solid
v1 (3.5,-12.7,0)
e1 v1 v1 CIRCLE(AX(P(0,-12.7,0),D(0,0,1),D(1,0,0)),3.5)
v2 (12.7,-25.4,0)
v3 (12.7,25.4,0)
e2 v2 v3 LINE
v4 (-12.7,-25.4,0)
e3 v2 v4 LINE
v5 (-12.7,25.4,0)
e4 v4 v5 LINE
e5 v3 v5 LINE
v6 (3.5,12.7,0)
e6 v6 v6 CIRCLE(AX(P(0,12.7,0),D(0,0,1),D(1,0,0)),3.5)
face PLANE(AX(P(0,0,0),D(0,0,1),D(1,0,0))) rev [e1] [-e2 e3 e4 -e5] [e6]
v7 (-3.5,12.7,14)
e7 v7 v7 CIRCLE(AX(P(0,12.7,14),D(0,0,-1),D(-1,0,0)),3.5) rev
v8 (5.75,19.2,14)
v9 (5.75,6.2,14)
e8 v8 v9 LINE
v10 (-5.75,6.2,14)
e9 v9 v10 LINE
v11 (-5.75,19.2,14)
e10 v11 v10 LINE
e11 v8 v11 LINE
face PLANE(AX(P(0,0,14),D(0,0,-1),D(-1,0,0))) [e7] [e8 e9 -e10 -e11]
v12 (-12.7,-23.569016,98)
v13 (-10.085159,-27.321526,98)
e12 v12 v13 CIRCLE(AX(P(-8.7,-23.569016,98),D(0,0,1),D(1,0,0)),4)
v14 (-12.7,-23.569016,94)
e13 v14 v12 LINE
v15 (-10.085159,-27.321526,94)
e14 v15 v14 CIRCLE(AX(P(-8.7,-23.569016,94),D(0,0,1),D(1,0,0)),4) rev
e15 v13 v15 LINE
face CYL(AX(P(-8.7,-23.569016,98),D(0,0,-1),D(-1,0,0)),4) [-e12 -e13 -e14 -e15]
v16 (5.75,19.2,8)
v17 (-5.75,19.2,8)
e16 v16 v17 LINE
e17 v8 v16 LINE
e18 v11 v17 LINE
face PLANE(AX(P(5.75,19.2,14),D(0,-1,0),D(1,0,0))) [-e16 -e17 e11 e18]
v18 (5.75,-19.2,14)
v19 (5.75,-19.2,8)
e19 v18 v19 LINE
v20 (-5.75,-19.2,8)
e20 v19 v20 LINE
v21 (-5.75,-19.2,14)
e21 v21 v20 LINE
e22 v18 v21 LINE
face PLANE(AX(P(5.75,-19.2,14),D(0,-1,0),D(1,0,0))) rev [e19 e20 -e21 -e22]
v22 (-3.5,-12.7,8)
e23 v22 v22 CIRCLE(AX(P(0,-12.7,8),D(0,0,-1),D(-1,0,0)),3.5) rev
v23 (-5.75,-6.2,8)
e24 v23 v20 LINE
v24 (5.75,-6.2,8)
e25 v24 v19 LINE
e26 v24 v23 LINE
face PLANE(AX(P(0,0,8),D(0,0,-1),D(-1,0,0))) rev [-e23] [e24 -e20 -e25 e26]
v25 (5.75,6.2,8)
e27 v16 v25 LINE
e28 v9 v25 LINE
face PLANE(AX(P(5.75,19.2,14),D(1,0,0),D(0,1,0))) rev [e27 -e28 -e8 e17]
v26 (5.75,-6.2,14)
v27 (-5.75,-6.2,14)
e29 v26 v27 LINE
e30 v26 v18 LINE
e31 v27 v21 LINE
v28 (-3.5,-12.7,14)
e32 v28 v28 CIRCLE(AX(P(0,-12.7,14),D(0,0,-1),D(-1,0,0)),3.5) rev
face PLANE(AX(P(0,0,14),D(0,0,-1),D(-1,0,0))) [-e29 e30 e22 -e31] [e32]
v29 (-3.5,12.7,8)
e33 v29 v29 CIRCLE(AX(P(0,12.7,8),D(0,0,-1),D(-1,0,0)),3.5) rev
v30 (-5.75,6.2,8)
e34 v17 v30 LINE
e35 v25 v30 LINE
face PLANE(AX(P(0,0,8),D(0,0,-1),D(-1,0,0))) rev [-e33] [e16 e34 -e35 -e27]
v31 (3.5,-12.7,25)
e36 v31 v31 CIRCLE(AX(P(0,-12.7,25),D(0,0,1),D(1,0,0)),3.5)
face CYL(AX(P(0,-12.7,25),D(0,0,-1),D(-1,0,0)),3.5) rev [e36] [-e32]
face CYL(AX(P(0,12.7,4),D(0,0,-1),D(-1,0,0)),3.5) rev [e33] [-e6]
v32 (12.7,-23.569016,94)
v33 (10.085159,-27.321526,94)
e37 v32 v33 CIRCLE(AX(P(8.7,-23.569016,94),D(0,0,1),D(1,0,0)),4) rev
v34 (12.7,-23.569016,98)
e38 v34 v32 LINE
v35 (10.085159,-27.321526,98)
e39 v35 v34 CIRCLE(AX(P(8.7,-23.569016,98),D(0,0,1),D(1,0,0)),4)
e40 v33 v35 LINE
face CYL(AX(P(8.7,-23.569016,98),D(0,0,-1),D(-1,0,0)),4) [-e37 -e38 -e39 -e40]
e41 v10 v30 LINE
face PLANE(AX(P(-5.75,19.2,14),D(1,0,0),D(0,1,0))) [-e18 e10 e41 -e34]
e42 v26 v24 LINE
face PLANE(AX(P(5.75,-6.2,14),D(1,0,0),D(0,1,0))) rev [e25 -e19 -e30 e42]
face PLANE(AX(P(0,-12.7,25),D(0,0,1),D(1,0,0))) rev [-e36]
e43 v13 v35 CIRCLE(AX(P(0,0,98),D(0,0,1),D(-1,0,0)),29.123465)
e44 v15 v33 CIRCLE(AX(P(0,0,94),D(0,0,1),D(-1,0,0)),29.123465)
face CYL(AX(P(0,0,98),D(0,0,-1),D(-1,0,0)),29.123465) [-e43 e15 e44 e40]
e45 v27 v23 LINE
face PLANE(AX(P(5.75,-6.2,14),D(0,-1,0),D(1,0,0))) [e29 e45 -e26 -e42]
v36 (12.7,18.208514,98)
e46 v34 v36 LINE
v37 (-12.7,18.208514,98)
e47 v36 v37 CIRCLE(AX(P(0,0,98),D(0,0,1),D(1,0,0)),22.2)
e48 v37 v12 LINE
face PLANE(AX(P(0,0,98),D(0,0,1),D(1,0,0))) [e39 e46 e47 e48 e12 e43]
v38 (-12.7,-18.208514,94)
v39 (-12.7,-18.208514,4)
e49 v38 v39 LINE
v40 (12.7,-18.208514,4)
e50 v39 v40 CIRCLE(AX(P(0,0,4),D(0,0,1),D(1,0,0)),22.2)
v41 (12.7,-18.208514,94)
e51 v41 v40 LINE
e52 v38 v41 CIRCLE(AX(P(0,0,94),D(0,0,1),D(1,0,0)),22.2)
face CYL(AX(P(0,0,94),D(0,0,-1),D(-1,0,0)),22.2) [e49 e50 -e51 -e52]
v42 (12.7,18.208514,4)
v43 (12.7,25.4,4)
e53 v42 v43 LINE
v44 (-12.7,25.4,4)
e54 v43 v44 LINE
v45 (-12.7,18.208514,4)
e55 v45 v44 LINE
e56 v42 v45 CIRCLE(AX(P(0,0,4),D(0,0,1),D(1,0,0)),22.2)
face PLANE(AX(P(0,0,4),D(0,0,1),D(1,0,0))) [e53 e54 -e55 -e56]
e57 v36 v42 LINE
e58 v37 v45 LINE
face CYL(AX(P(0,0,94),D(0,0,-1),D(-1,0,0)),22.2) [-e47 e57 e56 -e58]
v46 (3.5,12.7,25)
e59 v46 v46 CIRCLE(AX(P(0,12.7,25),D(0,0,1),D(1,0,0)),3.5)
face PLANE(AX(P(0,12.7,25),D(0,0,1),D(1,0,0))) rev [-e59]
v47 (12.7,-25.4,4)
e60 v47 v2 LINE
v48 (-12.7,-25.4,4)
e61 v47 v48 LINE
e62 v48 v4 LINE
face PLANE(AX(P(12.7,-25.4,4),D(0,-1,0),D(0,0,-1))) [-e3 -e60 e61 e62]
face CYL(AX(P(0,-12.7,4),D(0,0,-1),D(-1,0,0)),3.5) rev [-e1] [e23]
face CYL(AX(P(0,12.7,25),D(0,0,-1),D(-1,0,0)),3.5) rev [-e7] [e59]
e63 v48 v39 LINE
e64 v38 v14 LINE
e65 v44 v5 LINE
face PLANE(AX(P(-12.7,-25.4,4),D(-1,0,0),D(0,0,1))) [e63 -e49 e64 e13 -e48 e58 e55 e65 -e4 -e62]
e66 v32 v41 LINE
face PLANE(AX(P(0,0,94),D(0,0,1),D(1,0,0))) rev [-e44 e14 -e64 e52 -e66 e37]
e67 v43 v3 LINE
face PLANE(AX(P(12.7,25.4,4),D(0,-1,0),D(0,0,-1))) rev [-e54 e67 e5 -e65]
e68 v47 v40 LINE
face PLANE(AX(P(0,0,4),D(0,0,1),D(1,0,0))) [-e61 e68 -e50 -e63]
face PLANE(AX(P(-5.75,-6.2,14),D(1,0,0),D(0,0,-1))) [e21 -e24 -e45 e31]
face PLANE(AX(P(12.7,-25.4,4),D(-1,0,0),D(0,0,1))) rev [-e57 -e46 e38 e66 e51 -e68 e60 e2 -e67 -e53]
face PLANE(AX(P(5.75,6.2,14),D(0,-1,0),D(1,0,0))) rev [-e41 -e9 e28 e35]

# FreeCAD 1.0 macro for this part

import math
import FreeCAD as App
import Part
import Sketcher
from FreeCAD import Vector
Q = App.Units.Quantity


def edges_at(feature, points):
    """Names of the edges that pass closest to the given points."""
    edges = feature.Shape.Edges
    near = lambda p: min(range(len(edges)), key=lambda i: edges[i].distToShape(Part.Vertex(*p))[0])
    return sorted({f"Edge{near(p) + 1}" for p in points})

doc = App.newDocument("Part")
body = doc.addObject("PartDesign::Body", "Body")

sketch1 = body.newObject("Sketcher::SketchObject", "Sketch")
sketch1.AttachmentSupport = (doc.getObject("XY_Plane"), [""])
sketch1.MapMode = "FlatFace"
sketch1.addGeometry(Part.LineSegment(Vector(-12.7, 25.4, 0), Vector(-12.7, -25.4, 0)), False)
sketch1.addGeometry(Part.LineSegment(Vector(-12.7, -25.4, 0), Vector(12.7, -25.4, 0)), False)
sketch1.addGeometry(Part.LineSegment(Vector(12.7, -25.4, 0), Vector(12.7, 25.4, 0)), False)
sketch1.addGeometry(Part.LineSegment(Vector(12.7, 25.4, 0), Vector(-12.7, 25.4, 0)), False)
sketch1.addGeometry(Part.Circle(Vector(0, -12.7, 0), Vector(0, 0, 1), 3.5), False)
sketch1.addGeometry(Part.Circle(Vector(0, 12.7, 0), Vector(0, 0, 1), 3.5), False)
sketch1.addConstraint(Sketcher.Constraint("Coincident", 0, 2, 1, 1))
sketch1.addConstraint(Sketcher.Constraint("Coincident", 1, 2, 2, 1))
sketch1.addConstraint(Sketcher.Constraint("Coincident", 2, 2, 3, 1))
sketch1.addConstraint(Sketcher.Constraint("Coincident", 3, 2, 0, 1))
sketch1.addConstraint(Sketcher.Constraint("Vertical", 0))
sketch1.addConstraint(Sketcher.Constraint("Horizontal", 1))
sketch1.addConstraint(Sketcher.Constraint("Vertical", 2))
sketch1.addConstraint(Sketcher.Constraint("Horizontal", 3))
sketch1.addConstraint(Sketcher.Constraint("Equal", 4, 5))
sketch1.addConstraint(Sketcher.Constraint("Symmetric", 4, 3, 5, 3, -1, 1))
sketch1.addConstraint(Sketcher.Constraint("Symmetric", 0, 2, 2, 2, -1, 1))
sketch1.addConstraint(Sketcher.Constraint("PointOnObject", 4, 3, -2))
sketch1.addConstraint(Sketcher.Constraint("Diameter", 4, Q("7 mm")))
sketch1.addConstraint(Sketcher.Constraint("DistanceX", 1, 1, 1, 2, Q("25.4 mm")))
sketch1.addConstraint(Sketcher.Constraint("DistanceY", 0, 2, 0, 1, Q("50.8 mm")))
sketch1.addConstraint(Sketcher.Constraint("DistanceY", 4, 3, -1, 1, Q("12.7 mm")))
pad1 = body.newObject("PartDesign::Pad", "Pad")
pad1.Profile = sketch1
pad1.Length = 4

sketch2 = body.newObject("Sketcher::SketchObject", "Sketch001")
sketch2.AttachmentSupport = (doc.getObject("XY_Plane"), [""])
sketch2.MapMode = "FlatFace"
sketch2.AttachmentOffset = App.Placement(Vector(0, 0, 4), App.Rotation())
sketch2.addGeometry(Part.ArcOfCircle(Part.Circle(Vector(0, 0, 0), Vector(0, 0, 1), 22.2), math.radians(-124.894844), math.radians(-55.105156)), False)
sketch2.addGeometry(Part.LineSegment(Vector(12.7, -18.208514, 0), Vector(12.7, 18.208514, 0)), False)
sketch2.addGeometry(Part.ArcOfCircle(Part.Circle(Vector(0, 0, 0), Vector(0, 0, 1), 22.2), math.radians(55.105156), math.radians(124.894844)), False)
sketch2.addGeometry(Part.LineSegment(Vector(-12.7, 18.208514, 0), Vector(-12.7, -18.208514, 0)), False)
sketch2.addConstraint(Sketcher.Constraint("Coincident", 0, 2, 1, 1))
sketch2.addConstraint(Sketcher.Constraint("Coincident", 1, 2, 2, 1))
sketch2.addConstraint(Sketcher.Constraint("Coincident", 2, 2, 3, 1))
sketch2.addConstraint(Sketcher.Constraint("Coincident", 3, 2, 0, 1))
sketch2.addConstraint(Sketcher.Constraint("Vertical", 1))
sketch2.addConstraint(Sketcher.Constraint("Vertical", 3))
sketch2.addConstraint(Sketcher.Constraint("Coincident", 0, 3, -1, 1))
sketch2.addConstraint(Sketcher.Constraint("Coincident", 2, 3, -1, 1))
sketch2.addConstraint(Sketcher.Constraint("Equal", 0, 2))
sketch2.addConstraint(Sketcher.Constraint("Horizontal", 1, 2, 2, 2))
sketch2.addConstraint(Sketcher.Constraint("Radius", 0, Q("22.2 mm")))
sketch2.addConstraint(Sketcher.Constraint("DistanceX", -1, 1, 0, 2, Q("12.7 mm")))
pad2 = body.newObject("PartDesign::Pad", "Pad001")
pad2.Profile = sketch2
pad2.Length = 90

sketch3 = body.newObject("Sketcher::SketchObject", "Sketch002")
sketch3.AttachmentSupport = (doc.getObject("XY_Plane"), [""])
sketch3.MapMode = "FlatFace"
sketch3.AttachmentOffset = App.Placement(Vector(0, 0, 8), App.Rotation())
sketch3.addGeometry(Part.LineSegment(Vector(-5.75, -6.2, 0), Vector(-5.75, -19.2, 0)), False)
sketch3.addGeometry(Part.LineSegment(Vector(-5.75, -19.2, 0), Vector(5.75, -19.2, 0)), False)
sketch3.addGeometry(Part.LineSegment(Vector(5.75, -19.2, 0), Vector(5.75, -6.2, 0)), False)
sketch3.addGeometry(Part.LineSegment(Vector(5.75, -6.2, 0), Vector(-5.75, -6.2, 0)), False)
sketch3.addGeometry(Part.LineSegment(Vector(-5.75, 19.2, 0), Vector(-5.75, 6.2, 0)), False)
sketch3.addGeometry(Part.LineSegment(Vector(-5.75, 6.2, 0), Vector(5.75, 6.2, 0)), False)
sketch3.addGeometry(Part.LineSegment(Vector(5.75, 6.2, 0), Vector(5.75, 19.2, 0)), False)
sketch3.addGeometry(Part.LineSegment(Vector(5.75, 19.2, 0), Vector(-5.75, 19.2, 0)), False)
sketch3.addConstraint(Sketcher.Constraint("Coincident", 0, 2, 1, 1))
sketch3.addConstraint(Sketcher.Constraint("Coincident", 1, 2, 2, 1))
sketch3.addConstraint(Sketcher.Constraint("Coincident", 2, 2, 3, 1))
sketch3.addConstraint(Sketcher.Constraint("Coincident", 3, 2, 0, 1))
sketch3.addConstraint(Sketcher.Constraint("Coincident", 4, 2, 5, 1))
sketch3.addConstraint(Sketcher.Constraint("Coincident", 5, 2, 6, 1))
sketch3.addConstraint(Sketcher.Constraint("Coincident", 6, 2, 7, 1))
sketch3.addConstraint(Sketcher.Constraint("Coincident", 7, 2, 4, 1))
sketch3.addConstraint(Sketcher.Constraint("Vertical", 0))
sketch3.addConstraint(Sketcher.Constraint("Horizontal", 1))
sketch3.addConstraint(Sketcher.Constraint("Vertical", 2))
sketch3.addConstraint(Sketcher.Constraint("Horizontal", 3))
sketch3.addConstraint(Sketcher.Constraint("Vertical", 4))
sketch3.addConstraint(Sketcher.Constraint("Horizontal", 5))
sketch3.addConstraint(Sketcher.Constraint("Vertical", 6))
sketch3.addConstraint(Sketcher.Constraint("Horizontal", 7))
sketch3.addConstraint(Sketcher.Constraint("Symmetric", 2, 2, 4, 2, -1, 1))
sketch3.addConstraint(Sketcher.Constraint("Symmetric", 0, 2, 6, 2, -1, 1))
sketch3.addConstraint(Sketcher.Constraint("Vertical", 3, 2, 4, 2))
sketch3.addConstraint(Sketcher.Constraint("DistanceY", 0, 2, 0, 1, Q("13 mm")))
sketch3.addConstraint(Sketcher.Constraint("DistanceX", 1, 1, 1, 2, Q("11.5 mm")))
sketch3.addConstraint(Sketcher.Constraint("DistanceY", 0, 2, -1, 1, Q("19.2 mm")))
pocket1 = body.newObject("PartDesign::Pocket", "Pocket")
pocket1.Profile = sketch3
pocket1.Length = 6
pocket1.Reversed = True

sketch4 = body.newObject("Sketcher::SketchObject", "Sketch003")
sketch4.AttachmentSupport = (doc.getObject("XY_Plane"), [""])
sketch4.MapMode = "FlatFace"
sketch4.addGeometry(Part.Circle(Vector(0, 12.7, 0), Vector(0, 0, 1), 3.5), False)
sketch4.addGeometry(Part.Circle(Vector(0, -12.7, 0), Vector(0, 0, 1), 3.5), False)
sketch4.addConstraint(Sketcher.Constraint("Equal", 0, 1))
sketch4.addConstraint(Sketcher.Constraint("Symmetric", 0, 3, 1, 3, -1, 1))
sketch4.addConstraint(Sketcher.Constraint("PointOnObject", 0, 3, -2))
sketch4.addConstraint(Sketcher.Constraint("Diameter", 0, Q("7 mm")))
sketch4.addConstraint(Sketcher.Constraint("DistanceY", -1, 1, 0, 3, Q("12.7 mm")))
pocket2 = body.newObject("PartDesign::Pocket", "Pocket001")
pocket2.Profile = sketch4
pocket2.Length = 25
pocket2.Reversed = True

sketch5 = body.newObject("Sketcher::SketchObject", "Sketch004")
sketch5.AttachmentSupport = (doc.getObject("XY_Plane"), [""])
sketch5.MapMode = "FlatFace"
sketch5.AttachmentOffset = App.Placement(Vector(0, 0, 94), App.Rotation())
sketch5.addGeometry(Part.ArcOfCircle(Part.Circle(Vector(0, 0, 0), Vector(0, 0, 1), 29.123465), math.radians(-115.853684), math.radians(-64.146316)), False)
sketch5.addGeometry(Part.LineSegment(Vector(12.7, -26.208514, 0), Vector(12.7, 18.208514, 0)), False)
sketch5.addGeometry(Part.ArcOfCircle(Part.Circle(Vector(0, 0, 0), Vector(0, 0, 1), 22.2), math.radians(55.105156), math.radians(124.894844)), False)
sketch5.addGeometry(Part.LineSegment(Vector(-12.7, 18.208514, 0), Vector(-12.7, -26.208514, 0)), False)
sketch5.addConstraint(Sketcher.Constraint("Coincident", 0, 2, 1, 1))
sketch5.addConstraint(Sketcher.Constraint("Coincident", 1, 2, 2, 1))
sketch5.addConstraint(Sketcher.Constraint("Coincident", 2, 2, 3, 1))
sketch5.addConstraint(Sketcher.Constraint("Coincident", 3, 2, 0, 1))
sketch5.addConstraint(Sketcher.Constraint("Vertical", 1))
sketch5.addConstraint(Sketcher.Constraint("Vertical", 3))
sketch5.addConstraint(Sketcher.Constraint("Coincident", 0, 3, -1, 1))
sketch5.addConstraint(Sketcher.Constraint("Coincident", 2, 3, -1, 1))
sketch5.addConstraint(Sketcher.Constraint("Horizontal", 1, 2, 2, 2))
sketch5.addConstraint(Sketcher.Constraint("Radius", 2, Q("22.2 mm")))
sketch5.addConstraint(Sketcher.Constraint("DistanceX", -1, 1, 0, 2, Q("12.7 mm")))
sketch5.addConstraint(Sketcher.Constraint("Radius", 0, Q("29.123465 mm")))
pad3 = body.newObject("PartDesign::Pad", "Pad002")
pad3.Profile = sketch5
pad3.Length = 4
doc.recompute()

fillet = body.newObject("PartDesign::Fillet", "Fillet")
fillet.Base = (pad3, edges_at(pad3, [(12.7, -26.209, 96), (-12.7, -26.209, 96)]))
fillet.Radius = 4

doc.recompute()
